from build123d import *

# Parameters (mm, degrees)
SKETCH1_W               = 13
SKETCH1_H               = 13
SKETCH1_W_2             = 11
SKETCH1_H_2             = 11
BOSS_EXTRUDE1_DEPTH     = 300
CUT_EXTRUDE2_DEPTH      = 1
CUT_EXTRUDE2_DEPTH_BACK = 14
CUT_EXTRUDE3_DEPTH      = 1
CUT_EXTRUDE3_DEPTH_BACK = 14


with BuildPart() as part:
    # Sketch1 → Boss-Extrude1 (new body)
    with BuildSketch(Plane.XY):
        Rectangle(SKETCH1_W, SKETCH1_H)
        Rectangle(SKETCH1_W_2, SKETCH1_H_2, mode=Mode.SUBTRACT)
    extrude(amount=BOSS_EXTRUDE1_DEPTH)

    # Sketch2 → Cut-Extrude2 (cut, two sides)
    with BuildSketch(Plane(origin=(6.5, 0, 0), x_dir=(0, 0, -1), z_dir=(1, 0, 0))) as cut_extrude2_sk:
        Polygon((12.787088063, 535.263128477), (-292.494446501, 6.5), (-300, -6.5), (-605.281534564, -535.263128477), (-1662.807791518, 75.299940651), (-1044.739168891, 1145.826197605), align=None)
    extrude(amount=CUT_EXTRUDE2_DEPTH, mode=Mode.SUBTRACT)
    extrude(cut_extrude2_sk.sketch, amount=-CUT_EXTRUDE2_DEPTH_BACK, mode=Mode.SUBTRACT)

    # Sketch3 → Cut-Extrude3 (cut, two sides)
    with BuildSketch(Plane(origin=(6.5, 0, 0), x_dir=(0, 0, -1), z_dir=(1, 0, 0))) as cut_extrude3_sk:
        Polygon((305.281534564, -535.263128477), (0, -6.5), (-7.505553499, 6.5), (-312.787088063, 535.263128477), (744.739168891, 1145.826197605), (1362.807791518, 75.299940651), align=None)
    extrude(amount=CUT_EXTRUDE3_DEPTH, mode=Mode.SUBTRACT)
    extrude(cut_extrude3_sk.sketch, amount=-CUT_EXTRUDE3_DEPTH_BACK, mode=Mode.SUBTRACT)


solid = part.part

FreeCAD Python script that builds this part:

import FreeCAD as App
import Part
import Sketcher
Q = App.Units.Quantity

doc = App.newDocument("Part")
body = doc.addObject("PartDesign::Body", "Body")

sketch1 = doc.addObject("Sketcher::SketchObject", "Sketch")
body.addObject(sketch1)
sketch1.AttachmentSupport = (doc.XY_Plane, [""])
sketch1.MapMode = "FlatFace"
sketch1.addGeometry([
    Part.LineSegment(App.Vector(-6, 6, 0), App.Vector(-6, -6, 0)),
    Part.LineSegment(App.Vector(-6, -6, 0), App.Vector(6, -6, 0)),
    Part.LineSegment(App.Vector(6, -6, 0), App.Vector(6, 6, 0)),
    Part.LineSegment(App.Vector(6, 6, 0), App.Vector(-6, 6, 0)),
    Part.LineSegment(App.Vector(6, -6, 0), App.Vector(-6, -6, 0)),
    Part.LineSegment(App.Vector(-6, -6, 0), App.Vector(-6, 6, 0)),
    Part.LineSegment(App.Vector(-6, 6, 0), App.Vector(6, 6, 0)),
    Part.LineSegment(App.Vector(6, 6, 0), App.Vector(6, -6, 0)),
], False)
sketch1.addConstraint([
    Sketcher.Constraint("Coincident", 0, 2, 1, 1),
    Sketcher.Constraint("Coincident", 1, 2, 2, 1),
    Sketcher.Constraint("Coincident", 2, 2, 3, 1),
    Sketcher.Constraint("Coincident", 3, 2, 0, 1),
    Sketcher.Constraint("Coincident", 4, 2, 5, 1),
    Sketcher.Constraint("Coincident", 5, 2, 6, 1),
    Sketcher.Constraint("Coincident", 6, 2, 7, 1),
    Sketcher.Constraint("Coincident", 7, 2, 4, 1),
    Sketcher.Constraint("Vertical", 0),
    Sketcher.Constraint("Horizontal", 1),
    Sketcher.Constraint("Vertical", 2),
    Sketcher.Constraint("Horizontal", 3),
    Sketcher.Constraint("Horizontal", 4),
    Sketcher.Constraint("Vertical", 5),
    Sketcher.Constraint("Horizontal", 6),
    Sketcher.Constraint("Vertical", 7),
    Sketcher.Constraint("Symmetric", 0, 2, 2, 2, -1, 1),
    Sketcher.Constraint("Symmetric", 4, 2, 6, 2, -1, 1),
    Sketcher.Constraint("Equal", 3, 0),
    Sketcher.Constraint("Equal", 6, 5),
    Sketcher.Constraint("DistanceX", 1, 1, 1, 2, 13.0),
    Sketcher.Constraint("DistanceX", 4, 2, 4, 1, 11.0),
])
pad1 = doc.addObject("PartDesign::Pad", "Pad")
body.addObject(pad1)
pad1.Profile = sketch1
pad1.Length = 300

sketch2 = doc.addObject("Sketcher::SketchObject", "Sketch001")
body.addObject(sketch2)
sketch2.AttachmentSupport = (doc.YZ_Plane, [""])
sketch2.MapMode = "FlatFace"
sketch2.AttachmentOffset = App.Placement(App.Vector(0, 0, 6.5), App.Rotation())
sketch2.addGeometry([
    Part.LineSegment(App.Vector(6, 292, 0), App.Vector(535, -13, 0)),
    Part.LineSegment(App.Vector(535, -13, 0), App.Vector(1146, 1045, 0)),
    Part.LineSegment(App.Vector(1146, 1045, 0), App.Vector(75, 1663, 0)),
    Part.LineSegment(App.Vector(75, 1663, 0), App.Vector(-535, 605, 0)),
    Part.LineSegment(App.Vector(-535, 605, 0), App.Vector(-6, 300, 0)),
    Part.LineSegment(App.Vector(-6, 300, 0), App.Vector(6, 292, 0)),
], False)
sketch2.addConstraint([
    Sketcher.Constraint("Coincident", 0, 2, 1, 1),
    Sketcher.Constraint("Coincident", 1, 2, 2, 1),
    Sketcher.Constraint("Coincident", 2, 2, 3, 1),
    Sketcher.Constraint("Coincident", 3, 2, 4, 1),
    Sketcher.Constraint("Coincident", 4, 2, 5, 1),
    Sketcher.Constraint("Coincident", 5, 2, 0, 1),
    Sketcher.Constraint("Perpendicular", 0, 1),
    Sketcher.Constraint("Perpendicular", 1, 2),
    Sketcher.Constraint("Perpendicular", 2, 3),
    Sketcher.Constraint("Perpendicular", 3, 4),
    Sketcher.Constraint("Parallel", 4, 5),
    Sketcher.Constraint("Equal", 0, 4),
    Sketcher.Constraint("Angle", 0, Q("-30 deg")),
    Sketcher.Constraint("DistanceY", -1, 1, 4, 2, 300.0),
    Sketcher.Constraint("DistanceX", 4, 2, 5, 2, 13.0),
    Sketcher.Constraint("DistanceX", 4, 2, -1, 1, 6.5),
    Sketcher.Constraint("Distance", 0, 610.563069),
    Sketcher.Constraint("Distance", 1, 1221.126138),
])
pocket1 = doc.addObject("PartDesign::Pocket", "Pocket")
body.addObject(pocket1)
pocket1.Profile = sketch2
pocket1.Type = "ThroughAll"
pocket1.Midplane = True

sketch3 = doc.addObject("Sketcher::SketchObject", "Sketch002")
body.addObject(sketch3)
sketch3.AttachmentSupport = (doc.YZ_Plane, [""])
sketch3.MapMode = "FlatFace"
sketch3.AttachmentOffset = App.Placement(App.Vector(0, 0, 6.5), App.Rotation())
sketch3.addGeometry([
    Part.LineSegment(App.Vector(-6, 0, 0), App.Vector(-535, -305, 0)),
    Part.LineSegment(App.Vector(-535, -305, 0), App.Vector(75, -1363, 0)),
    Part.LineSegment(App.Vector(75, -1363, 0), App.Vector(1146, -745, 0)),
    Part.LineSegment(App.Vector(1146, -745, 0), App.Vector(535, 313, 0)),
    Part.LineSegment(App.Vector(535, 313, 0), App.Vector(6, 8, 0)),
    Part.LineSegment(App.Vector(6, 8, 0), App.Vector(-6, 0, 0)),
], False)
sketch3.addConstraint([
    Sketcher.Constraint("Coincident", 0, 2, 1, 1),
    Sketcher.Constraint("Coincident", 1, 2, 2, 1),
    Sketcher.Constraint("Coincident", 2, 2, 3, 1),
    Sketcher.Constraint("Coincident", 3, 2, 4, 1),
    Sketcher.Constraint("Coincident", 4, 2, 5, 1),
    Sketcher.Constraint("Coincident", 5, 2, 0, 1),
    Sketcher.Constraint("PointOnObject", 5, 2, -1),
    Sketcher.Constraint("Perpendicular", 0, 1),
    Sketcher.Constraint("Perpendicular", 1, 2),
    Sketcher.Constraint("Perpendicular", 2, 3),
    Sketcher.Constraint("Perpendicular", 3, 4),
    Sketcher.Constraint("Parallel", 4, 5),
    Sketcher.Constraint("Equal", 0, 4),
    Sketcher.Constraint("Angle", 0, Q("-150 deg")),
    Sketcher.Constraint("DistanceX", 5, 2, 4, 2, 13.0),
    Sketcher.Constraint("DistanceX", -1, 1, 4, 2, 6.5),
    Sketcher.Constraint("Distance", 0, 610.563069),
    Sketcher.Constraint("Distance", 1, 1221.126138),
])
pocket2 = doc.addObject("PartDesign::Pocket", "Pocket001")
body.addObject(pocket2)
pocket2.Profile = sketch3
pocket2.Type = "ThroughAll"
pocket2.Midplane = True

doc.recompute()
